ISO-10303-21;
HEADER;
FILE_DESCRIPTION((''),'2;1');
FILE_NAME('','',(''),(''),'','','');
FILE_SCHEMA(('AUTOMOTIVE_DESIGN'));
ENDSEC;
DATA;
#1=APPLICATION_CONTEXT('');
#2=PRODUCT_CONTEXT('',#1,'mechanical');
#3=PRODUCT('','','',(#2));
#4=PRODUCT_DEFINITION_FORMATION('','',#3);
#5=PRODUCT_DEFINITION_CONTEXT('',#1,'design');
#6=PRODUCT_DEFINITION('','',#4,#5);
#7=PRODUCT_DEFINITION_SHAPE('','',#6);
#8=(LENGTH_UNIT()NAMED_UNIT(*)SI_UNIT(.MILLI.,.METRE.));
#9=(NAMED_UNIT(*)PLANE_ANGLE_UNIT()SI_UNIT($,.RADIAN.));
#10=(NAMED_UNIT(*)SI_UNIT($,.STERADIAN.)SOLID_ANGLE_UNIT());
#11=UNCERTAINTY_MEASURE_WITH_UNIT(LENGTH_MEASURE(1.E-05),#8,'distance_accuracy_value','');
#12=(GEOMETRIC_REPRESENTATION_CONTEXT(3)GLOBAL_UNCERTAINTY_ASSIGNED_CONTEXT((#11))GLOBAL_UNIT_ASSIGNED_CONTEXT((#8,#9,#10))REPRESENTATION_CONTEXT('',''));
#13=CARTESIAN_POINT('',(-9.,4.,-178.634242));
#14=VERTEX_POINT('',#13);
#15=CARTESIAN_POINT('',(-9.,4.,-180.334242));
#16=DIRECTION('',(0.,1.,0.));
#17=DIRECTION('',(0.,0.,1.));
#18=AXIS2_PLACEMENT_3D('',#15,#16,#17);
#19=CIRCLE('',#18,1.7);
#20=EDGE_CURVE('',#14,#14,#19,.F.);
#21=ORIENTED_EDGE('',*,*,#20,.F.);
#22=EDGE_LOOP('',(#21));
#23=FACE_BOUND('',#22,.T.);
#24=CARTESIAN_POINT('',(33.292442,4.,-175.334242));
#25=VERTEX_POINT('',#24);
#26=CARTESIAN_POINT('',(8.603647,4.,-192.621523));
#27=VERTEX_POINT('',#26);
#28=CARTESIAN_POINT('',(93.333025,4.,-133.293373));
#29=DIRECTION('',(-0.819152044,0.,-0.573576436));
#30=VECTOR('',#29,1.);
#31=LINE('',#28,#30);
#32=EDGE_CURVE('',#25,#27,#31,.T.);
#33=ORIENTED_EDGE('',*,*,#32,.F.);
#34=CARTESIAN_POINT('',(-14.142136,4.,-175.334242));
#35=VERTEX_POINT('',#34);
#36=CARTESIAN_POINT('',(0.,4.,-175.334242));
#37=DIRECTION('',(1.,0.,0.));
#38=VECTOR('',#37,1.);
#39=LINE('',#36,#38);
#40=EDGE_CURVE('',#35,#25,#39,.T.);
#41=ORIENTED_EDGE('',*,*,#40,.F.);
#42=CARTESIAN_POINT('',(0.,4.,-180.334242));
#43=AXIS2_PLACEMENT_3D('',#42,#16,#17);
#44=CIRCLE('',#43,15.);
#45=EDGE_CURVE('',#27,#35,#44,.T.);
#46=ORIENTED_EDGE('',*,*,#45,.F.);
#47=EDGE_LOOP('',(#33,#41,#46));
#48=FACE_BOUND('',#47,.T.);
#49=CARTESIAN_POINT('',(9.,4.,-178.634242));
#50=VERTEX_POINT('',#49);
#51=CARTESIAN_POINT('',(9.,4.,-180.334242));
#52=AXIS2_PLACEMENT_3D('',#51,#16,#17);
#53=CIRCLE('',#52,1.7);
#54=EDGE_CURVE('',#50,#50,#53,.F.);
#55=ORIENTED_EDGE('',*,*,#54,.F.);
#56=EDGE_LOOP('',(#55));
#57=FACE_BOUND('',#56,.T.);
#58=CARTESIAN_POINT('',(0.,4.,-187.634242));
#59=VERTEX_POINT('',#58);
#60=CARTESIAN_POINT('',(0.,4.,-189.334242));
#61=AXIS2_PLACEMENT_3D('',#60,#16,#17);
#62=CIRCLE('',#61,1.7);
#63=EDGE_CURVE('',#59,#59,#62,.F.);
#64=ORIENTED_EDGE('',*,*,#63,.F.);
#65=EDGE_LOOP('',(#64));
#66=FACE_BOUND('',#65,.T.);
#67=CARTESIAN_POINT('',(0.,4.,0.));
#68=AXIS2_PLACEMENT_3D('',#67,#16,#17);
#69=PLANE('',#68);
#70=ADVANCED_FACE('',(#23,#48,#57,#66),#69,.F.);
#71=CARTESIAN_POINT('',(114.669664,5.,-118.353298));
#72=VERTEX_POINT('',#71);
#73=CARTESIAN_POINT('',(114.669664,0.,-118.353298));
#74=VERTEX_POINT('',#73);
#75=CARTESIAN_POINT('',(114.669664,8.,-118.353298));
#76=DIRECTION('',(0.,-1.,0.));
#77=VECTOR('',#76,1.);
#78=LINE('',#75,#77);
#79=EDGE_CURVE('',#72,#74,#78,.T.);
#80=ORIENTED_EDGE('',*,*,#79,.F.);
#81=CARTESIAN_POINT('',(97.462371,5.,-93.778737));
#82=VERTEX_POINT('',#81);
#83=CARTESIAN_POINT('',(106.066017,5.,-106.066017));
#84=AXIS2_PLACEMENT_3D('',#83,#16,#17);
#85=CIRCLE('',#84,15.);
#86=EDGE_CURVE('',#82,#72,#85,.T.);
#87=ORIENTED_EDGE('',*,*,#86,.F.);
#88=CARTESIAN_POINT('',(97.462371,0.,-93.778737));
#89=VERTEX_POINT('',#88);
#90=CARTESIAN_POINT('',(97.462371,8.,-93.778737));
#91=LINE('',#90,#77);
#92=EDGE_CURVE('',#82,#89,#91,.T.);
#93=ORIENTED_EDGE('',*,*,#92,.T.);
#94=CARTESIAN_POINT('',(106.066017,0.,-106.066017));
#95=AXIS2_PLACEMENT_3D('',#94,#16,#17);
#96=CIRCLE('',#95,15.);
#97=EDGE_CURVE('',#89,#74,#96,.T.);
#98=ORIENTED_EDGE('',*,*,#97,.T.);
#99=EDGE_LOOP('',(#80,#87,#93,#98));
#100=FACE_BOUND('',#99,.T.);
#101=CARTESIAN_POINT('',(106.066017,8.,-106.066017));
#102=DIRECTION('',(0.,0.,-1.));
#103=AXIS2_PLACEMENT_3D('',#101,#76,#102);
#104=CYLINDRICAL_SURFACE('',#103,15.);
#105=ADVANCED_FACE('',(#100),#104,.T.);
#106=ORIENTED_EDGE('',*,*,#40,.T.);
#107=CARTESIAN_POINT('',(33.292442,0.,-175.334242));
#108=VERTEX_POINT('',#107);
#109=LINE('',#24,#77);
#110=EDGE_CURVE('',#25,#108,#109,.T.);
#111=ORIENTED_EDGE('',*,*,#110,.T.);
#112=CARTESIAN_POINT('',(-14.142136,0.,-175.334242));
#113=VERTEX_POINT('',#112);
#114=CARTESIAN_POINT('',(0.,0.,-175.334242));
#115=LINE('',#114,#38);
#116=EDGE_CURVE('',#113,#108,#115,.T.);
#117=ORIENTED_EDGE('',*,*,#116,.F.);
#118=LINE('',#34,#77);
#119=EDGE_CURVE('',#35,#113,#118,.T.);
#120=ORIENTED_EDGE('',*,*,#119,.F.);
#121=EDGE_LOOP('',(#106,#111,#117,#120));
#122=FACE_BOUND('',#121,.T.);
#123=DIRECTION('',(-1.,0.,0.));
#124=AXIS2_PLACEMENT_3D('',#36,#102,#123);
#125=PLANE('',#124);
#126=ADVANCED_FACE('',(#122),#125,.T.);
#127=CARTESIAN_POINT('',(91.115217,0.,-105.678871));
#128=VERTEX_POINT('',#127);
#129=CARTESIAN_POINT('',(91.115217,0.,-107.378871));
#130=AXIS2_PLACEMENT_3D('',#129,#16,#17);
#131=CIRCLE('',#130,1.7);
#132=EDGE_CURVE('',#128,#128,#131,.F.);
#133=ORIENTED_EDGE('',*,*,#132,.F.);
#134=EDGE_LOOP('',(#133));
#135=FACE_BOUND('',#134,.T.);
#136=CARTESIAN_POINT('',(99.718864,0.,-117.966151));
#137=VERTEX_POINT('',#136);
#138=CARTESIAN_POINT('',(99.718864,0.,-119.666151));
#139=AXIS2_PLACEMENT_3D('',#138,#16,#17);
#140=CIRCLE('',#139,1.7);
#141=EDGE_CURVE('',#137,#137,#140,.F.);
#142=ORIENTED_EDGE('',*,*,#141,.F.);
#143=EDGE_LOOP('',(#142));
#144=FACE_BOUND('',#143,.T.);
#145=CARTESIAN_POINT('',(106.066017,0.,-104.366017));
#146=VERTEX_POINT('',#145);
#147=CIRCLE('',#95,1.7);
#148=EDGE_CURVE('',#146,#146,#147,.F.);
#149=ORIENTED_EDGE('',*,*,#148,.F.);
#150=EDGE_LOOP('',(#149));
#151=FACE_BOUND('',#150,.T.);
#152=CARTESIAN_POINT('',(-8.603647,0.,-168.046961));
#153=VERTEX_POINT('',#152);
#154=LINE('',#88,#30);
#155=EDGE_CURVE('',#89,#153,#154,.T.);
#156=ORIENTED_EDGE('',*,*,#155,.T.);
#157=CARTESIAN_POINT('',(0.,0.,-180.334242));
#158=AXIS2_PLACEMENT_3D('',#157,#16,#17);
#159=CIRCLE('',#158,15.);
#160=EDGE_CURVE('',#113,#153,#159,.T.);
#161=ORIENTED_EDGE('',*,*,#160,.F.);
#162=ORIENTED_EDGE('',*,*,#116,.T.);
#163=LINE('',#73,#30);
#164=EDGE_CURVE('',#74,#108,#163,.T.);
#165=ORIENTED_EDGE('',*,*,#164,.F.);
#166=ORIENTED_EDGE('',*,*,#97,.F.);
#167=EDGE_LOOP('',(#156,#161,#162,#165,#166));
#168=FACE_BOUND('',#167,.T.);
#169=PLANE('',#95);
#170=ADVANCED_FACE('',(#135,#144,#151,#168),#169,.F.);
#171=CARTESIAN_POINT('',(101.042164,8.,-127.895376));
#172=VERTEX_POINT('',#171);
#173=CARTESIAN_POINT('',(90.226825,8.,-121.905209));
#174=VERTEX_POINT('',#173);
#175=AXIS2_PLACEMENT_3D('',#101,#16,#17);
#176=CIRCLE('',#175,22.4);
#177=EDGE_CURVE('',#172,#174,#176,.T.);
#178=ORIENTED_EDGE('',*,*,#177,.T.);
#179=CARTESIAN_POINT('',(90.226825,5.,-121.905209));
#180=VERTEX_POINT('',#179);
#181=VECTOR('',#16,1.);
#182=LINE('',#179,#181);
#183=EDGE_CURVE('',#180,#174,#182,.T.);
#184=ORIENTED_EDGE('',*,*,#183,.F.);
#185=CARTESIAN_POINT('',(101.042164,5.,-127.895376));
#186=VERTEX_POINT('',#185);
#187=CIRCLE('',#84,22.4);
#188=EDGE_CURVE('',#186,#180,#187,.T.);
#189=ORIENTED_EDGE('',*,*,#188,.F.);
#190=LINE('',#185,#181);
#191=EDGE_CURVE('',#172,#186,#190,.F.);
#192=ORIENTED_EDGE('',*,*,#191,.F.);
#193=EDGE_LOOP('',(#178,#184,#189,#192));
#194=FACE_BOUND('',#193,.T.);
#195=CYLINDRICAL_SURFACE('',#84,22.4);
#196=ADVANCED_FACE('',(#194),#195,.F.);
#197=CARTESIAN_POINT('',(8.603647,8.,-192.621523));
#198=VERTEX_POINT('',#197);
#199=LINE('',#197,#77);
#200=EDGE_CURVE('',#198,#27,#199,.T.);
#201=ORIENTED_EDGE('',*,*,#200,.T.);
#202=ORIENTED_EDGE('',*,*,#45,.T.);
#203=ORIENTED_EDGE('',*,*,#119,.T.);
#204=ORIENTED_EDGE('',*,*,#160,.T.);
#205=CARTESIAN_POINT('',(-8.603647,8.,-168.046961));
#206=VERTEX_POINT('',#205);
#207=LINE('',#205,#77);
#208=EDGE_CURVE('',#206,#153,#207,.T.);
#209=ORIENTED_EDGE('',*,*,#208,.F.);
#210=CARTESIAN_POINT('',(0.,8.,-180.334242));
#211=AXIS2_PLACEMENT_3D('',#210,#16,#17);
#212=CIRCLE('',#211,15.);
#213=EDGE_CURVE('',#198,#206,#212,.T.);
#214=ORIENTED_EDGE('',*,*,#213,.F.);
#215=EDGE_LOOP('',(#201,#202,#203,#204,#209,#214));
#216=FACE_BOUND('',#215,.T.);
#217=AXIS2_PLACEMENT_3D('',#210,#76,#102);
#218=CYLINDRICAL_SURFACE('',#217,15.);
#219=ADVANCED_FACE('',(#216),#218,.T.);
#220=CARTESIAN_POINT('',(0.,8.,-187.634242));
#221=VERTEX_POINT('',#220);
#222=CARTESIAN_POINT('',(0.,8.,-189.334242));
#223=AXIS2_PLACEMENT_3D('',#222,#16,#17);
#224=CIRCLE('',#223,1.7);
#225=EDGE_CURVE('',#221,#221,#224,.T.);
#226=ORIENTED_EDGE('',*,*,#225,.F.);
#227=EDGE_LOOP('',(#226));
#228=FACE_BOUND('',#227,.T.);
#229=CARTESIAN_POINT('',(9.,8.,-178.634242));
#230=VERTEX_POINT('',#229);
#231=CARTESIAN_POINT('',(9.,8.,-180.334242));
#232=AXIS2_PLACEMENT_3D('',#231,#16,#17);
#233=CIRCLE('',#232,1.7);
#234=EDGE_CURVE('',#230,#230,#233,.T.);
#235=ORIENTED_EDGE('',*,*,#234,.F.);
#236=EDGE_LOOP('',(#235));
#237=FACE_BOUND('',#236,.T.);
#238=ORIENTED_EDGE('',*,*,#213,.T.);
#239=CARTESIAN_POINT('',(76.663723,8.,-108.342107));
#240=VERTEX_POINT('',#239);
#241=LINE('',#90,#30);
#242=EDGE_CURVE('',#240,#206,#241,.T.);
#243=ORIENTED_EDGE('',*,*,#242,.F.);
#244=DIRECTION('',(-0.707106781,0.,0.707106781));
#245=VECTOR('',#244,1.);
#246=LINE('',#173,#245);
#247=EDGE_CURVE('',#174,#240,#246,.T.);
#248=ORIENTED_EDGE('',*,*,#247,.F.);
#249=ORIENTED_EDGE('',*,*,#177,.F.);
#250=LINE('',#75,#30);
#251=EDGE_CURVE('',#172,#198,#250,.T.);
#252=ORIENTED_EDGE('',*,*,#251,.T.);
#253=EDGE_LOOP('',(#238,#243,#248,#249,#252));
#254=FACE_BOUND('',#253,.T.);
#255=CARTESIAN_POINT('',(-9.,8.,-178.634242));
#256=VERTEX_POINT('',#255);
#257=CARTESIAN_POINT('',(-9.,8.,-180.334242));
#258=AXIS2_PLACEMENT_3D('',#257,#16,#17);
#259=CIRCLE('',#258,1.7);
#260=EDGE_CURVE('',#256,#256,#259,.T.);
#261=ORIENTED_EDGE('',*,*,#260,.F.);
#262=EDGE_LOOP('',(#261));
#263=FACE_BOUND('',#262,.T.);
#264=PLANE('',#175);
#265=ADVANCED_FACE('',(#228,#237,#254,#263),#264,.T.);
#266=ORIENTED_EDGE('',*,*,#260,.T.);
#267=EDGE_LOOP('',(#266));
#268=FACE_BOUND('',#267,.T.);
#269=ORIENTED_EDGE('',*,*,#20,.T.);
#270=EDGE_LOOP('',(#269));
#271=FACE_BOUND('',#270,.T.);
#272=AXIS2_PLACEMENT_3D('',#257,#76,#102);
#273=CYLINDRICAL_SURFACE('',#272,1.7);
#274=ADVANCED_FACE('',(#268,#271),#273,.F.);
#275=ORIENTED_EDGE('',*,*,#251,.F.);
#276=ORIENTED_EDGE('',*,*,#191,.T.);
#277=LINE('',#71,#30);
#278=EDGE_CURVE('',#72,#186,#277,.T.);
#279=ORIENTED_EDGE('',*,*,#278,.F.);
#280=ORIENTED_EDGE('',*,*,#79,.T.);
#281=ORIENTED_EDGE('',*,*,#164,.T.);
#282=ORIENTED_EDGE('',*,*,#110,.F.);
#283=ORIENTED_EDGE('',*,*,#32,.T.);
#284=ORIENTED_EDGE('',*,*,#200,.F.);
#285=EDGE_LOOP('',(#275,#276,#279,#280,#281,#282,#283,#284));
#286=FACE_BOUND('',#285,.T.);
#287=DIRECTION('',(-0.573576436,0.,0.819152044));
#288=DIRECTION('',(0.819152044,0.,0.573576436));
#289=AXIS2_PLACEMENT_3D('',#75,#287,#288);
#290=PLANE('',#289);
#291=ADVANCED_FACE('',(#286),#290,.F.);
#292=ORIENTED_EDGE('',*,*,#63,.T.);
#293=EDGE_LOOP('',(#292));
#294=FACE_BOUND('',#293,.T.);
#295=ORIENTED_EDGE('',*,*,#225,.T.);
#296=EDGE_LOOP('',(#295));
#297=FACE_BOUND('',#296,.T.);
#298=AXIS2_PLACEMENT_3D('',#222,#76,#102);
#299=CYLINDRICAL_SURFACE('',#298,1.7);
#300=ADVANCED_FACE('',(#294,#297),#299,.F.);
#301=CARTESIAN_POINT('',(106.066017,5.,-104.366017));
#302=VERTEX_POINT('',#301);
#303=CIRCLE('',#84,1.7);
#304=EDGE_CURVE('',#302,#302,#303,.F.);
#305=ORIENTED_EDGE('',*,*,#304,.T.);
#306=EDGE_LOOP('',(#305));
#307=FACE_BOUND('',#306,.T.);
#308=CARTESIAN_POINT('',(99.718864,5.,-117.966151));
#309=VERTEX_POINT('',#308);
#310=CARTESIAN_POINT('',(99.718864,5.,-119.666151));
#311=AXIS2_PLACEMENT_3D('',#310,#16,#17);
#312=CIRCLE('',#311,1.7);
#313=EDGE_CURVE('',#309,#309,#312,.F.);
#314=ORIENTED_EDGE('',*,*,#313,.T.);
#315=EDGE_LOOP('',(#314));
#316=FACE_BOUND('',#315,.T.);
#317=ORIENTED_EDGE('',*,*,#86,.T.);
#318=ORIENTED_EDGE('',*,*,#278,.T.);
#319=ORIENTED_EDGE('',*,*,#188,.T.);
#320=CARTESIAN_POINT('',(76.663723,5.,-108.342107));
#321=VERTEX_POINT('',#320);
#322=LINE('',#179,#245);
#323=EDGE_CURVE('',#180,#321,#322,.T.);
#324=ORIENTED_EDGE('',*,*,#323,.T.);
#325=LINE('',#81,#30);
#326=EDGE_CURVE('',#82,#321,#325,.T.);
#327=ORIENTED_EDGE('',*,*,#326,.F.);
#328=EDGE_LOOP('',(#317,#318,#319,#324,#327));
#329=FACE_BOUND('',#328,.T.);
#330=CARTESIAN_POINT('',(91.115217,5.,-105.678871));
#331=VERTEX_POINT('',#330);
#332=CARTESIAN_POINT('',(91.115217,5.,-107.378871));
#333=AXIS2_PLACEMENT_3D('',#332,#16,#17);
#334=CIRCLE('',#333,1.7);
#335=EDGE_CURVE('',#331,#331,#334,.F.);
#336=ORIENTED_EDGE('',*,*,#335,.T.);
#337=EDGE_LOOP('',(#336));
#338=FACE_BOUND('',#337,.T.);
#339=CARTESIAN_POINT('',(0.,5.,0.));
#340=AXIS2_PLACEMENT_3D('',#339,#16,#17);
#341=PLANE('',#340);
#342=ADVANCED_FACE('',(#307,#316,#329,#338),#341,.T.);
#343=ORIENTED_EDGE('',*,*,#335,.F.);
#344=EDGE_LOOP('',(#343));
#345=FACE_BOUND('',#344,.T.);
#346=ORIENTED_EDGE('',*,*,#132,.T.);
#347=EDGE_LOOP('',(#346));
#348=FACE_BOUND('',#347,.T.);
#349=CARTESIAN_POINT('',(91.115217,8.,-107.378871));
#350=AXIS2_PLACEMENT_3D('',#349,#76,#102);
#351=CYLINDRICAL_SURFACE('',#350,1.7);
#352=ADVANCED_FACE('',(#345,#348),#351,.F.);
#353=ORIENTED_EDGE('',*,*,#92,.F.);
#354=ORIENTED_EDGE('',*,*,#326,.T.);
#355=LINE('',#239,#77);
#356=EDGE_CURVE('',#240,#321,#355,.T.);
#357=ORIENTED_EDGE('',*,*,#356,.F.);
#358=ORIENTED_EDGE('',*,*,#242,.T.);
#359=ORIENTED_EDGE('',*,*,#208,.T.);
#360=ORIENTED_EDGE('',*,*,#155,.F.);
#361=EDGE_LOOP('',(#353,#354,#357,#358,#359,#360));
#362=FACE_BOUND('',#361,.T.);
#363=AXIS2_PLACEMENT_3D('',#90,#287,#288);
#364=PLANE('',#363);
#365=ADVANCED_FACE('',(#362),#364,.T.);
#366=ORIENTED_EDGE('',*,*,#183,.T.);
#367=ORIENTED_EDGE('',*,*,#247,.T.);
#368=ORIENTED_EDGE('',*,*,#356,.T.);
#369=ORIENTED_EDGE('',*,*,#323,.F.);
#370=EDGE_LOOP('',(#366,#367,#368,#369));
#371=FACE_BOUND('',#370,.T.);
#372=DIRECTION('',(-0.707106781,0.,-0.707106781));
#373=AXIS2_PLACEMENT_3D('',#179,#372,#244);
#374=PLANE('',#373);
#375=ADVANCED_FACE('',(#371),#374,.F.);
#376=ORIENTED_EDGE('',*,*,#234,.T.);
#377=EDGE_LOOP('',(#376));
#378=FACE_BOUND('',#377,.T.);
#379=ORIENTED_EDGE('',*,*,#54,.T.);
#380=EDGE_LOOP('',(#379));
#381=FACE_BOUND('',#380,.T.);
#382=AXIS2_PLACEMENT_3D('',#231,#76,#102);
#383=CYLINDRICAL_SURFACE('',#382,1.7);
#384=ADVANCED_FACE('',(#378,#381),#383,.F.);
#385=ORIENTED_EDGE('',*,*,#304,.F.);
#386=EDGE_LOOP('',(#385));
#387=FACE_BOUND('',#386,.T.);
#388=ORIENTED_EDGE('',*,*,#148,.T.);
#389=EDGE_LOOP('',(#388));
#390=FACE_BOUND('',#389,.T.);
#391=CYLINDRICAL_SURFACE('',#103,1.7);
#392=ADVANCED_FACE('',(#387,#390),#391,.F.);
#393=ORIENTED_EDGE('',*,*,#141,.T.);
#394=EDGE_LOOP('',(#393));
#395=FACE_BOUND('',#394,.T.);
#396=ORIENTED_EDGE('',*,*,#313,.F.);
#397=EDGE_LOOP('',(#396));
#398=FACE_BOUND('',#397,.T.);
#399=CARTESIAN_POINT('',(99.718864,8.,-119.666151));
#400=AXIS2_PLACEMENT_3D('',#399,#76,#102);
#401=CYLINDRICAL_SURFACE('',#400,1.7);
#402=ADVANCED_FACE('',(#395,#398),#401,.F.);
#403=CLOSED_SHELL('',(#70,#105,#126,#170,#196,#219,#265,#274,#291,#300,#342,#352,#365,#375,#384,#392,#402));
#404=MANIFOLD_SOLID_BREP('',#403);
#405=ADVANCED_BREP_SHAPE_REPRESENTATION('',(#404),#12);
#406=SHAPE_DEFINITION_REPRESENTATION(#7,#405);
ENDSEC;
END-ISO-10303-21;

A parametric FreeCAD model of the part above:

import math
import FreeCAD as App
import Part
import Sketcher
from FreeCAD import Vector
Q = App.Units.Quantity

doc = App.newDocument("Part")
params = doc.addObject("Spreadsheet::Sheet", "Params")
for row, (alias, value) in enumerate([
    ("sketch1_radius", "15 mm"),
    ("pad1_length", "8 mm"),
    ("sketch2_radius", "22.4 mm"),
    ("sketch2_length", "150 mm"),
    ("pocket1_length", "3 mm"),
    ("sketch3_radius", "15 mm"),
    ("sketch3_diameter", "3.4 mm"),
    ("pocket2_length", "4 mm"),
    ("sketch4_diameter", "3.4 mm"),
], start=1):
    params.set(f"A{row}", alias)
    params.set(f"B{row}", "=" + value)
    params.setAlias(f"B{row}", alias)

body = doc.addObject("PartDesign::Body", "Body")

sketch1 = doc.addObject("Sketcher::SketchObject", "Sketch")
body.addObject(sketch1)
sketch1.AttachmentSupport = (doc.XZ_Plane, [""])
sketch1.MapMode = "FlatFace"
sketch1.addGeometry([
    Part.LineSegment(Vector(-9, -168, 0), Vector(97, -94, 0)),
    Part.ArcOfCircle(Part.Circle(Vector(106, -106, 0), Vector(0, 0, 1), 15), math.radians(-55), math.radians(125)),
    Part.LineSegment(Vector(115, -118, 0), Vector(9, -193, 0)),
    Part.ArcOfCircle(Part.Circle(Vector(0, -180, 0), Vector(0, 0, 1), 15), math.radians(125), math.radians(305)),
], False)
sketch1.addConstraint([
    Sketcher.Constraint("Tangent", 0, 2, 1, 2),
    Sketcher.Constraint("Tangent", 1, 1, 2, 1),
    Sketcher.Constraint("Tangent", 2, 2, 3, 2),
    Sketcher.Constraint("Tangent", 3, 1, 0, 1),
    Sketcher.Constraint("Equal", 1, 3),
    Sketcher.Constraint("PointOnObject", 3, 3, -2),
    Sketcher.Constraint("Radius", 1, 15.0),
    Sketcher.Constraint("Angle", 0, Q("35 deg")),
    Sketcher.Constraint("Distance", 0, 129.482699),
    Sketcher.Constraint("DistanceY", 3, 3, -1, 1, 180.334242),
])
sketch1.setExpression("Constraints[6]", "Params.sketch1_radius")
pad1 = doc.addObject("PartDesign::Pad", "Pad")
body.addObject(pad1)
pad1.Profile = sketch1
pad1.setExpression("Length", "Params.pad1_length")
pad1.Reversed = True

sketch2 = doc.addObject("Sketcher::SketchObject", "Sketch001")
body.addObject(sketch2)
sketch2.AttachmentSupport = (doc.XZ_Plane, [""])
sketch2.MapMode = "FlatFace"
sketch2.AttachmentOffset = App.Placement(Vector(0, 0, -8), App.Rotation())
sketch2.addGeometry([
    Part.LineSegment(Vector(90, -122, 0), Vector(-16, -16, 0)),
    Part.ArcOfCircle(Part.Circle(Vector(0, 0, 0), Vector(0, 0, 1), 22), math.radians(45), math.radians(225)),
    Part.LineSegment(Vector(16, 16, 0), Vector(122, -90, 0)),
    Part.ArcOfCircle(Part.Circle(Vector(106, -106, 0), Vector(0, 0, 1), 22), math.radians(-135), math.radians(45)),
], False)
sketch2.addConstraint([
    Sketcher.Constraint("Tangent", 0, 2, 1, 2),
    Sketcher.Constraint("Tangent", 1, 1, 2, 1),
    Sketcher.Constraint("Tangent", 2, 2, 3, 2),
    Sketcher.Constraint("Tangent", 3, 1, 0, 1),
    Sketcher.Constraint("Coincident", 1, 3, -1, 1),
    Sketcher.Constraint("Equal", 1, 3),
    Sketcher.Constraint("Radius", 1, 22.4),
    Sketcher.Constraint("Angle", 0, Q("135 deg")),
    Sketcher.Constraint("Distance", 0, 150.0),
])
sketch2.setExpression("Constraints[6]", "Params.sketch2_radius")
sketch2.setExpression("Constraints[8]", "Params.sketch2_length")
pocket1 = doc.addObject("PartDesign::Pocket", "Pocket")
body.addObject(pocket1)
pocket1.Profile = sketch2
pocket1.setExpression("Length", "Params.pocket1_length")
pocket1.Reversed = True

sketch3 = doc.addObject("Sketcher::SketchObject", "Sketch002")
body.addObject(sketch3)
sketch3.AttachmentSupport = (doc.XZ_Plane, [""])
sketch3.MapMode = "FlatFace"
sketch3.addGeometry([
    Part.ArcOfCircle(Part.Circle(Vector(0, -180.3, 0), Vector(0, 0, 1), 15), math.radians(161), math.radians(305)),
    Part.LineSegment(Vector(-14.1, -175.3, 0), Vector(33.3, -175.3, 0)),
    Part.LineSegment(Vector(33.3, -175.3, 0), Vector(8.6, -192.6, 0)),
    Part.Circle(Vector(-9, -180.3, 0), Vector(0, 0, 1), 1.7),
    Part.Circle(Vector(9, -180.3, 0), Vector(0, 0, 1), 1.7),
    Part.Circle(Vector(0, -189.3, 0), Vector(0, 0, 1), 1.7),
], False)
sketch3.addConstraint([
    Sketcher.Constraint("Coincident", 0, 1, 1, 1),
    Sketcher.Constraint("Coincident", 1, 2, 2, 1),
    Sketcher.Constraint("Tangent", 2, 2, 0, 2),
    Sketcher.Constraint("Horizontal", 1),
    Sketcher.Constraint("Equal", 3, 4),
    Sketcher.Constraint("Equal", 4, 5),
    Sketcher.Constraint("Symmetric", 3, 3, 4, 3, -2),
    Sketcher.Constraint("PointOnObject", 0, 3, -2),
    Sketcher.Constraint("PointOnObject", 5, 3, -2),
    Sketcher.Constraint("Horizontal", 0, 3, 3, 3),
    Sketcher.Constraint("Radius", 0, 15.0),
    Sketcher.Constraint("Diameter", 3, 3.4),
    Sketcher.Constraint("Angle", 2, Q("-145 deg")),
    Sketcher.Constraint("DistanceX", 3, 3, -1, 1, 9.0),
    Sketcher.Constraint("DistanceY", 5, 3, 0, 3, 9.0),
    Sketcher.Constraint("DistanceY", 3, 3, 0, 1, 5.0),
    Sketcher.Constraint("DistanceY", 0, 3, -1, 1, 180.334242),
])
sketch3.setExpression("Constraints[10]", "Params.sketch3_radius")
sketch3.setExpression("Constraints[11]", "Params.sketch3_diameter")
pocket2 = doc.addObject("PartDesign::Pocket", "Pocket001")
body.addObject(pocket2)
pocket2.Profile = sketch3
pocket2.setExpression("Length", "Params.pocket2_length")

sketch4 = doc.addObject("Sketcher::SketchObject", "Sketch003")
body.addObject(sketch4)
sketch4.AttachmentSupport = (doc.XZ_Plane, [""])
sketch4.MapMode = "FlatFace"
sketch4.addGeometry([
    Part.Circle(Vector(0, -189.3, 0), Vector(0, 0, 1), 1.7),
    Part.Circle(Vector(-9, -180.3, 0), Vector(0, 0, 1), 1.7),
    Part.Circle(Vector(9, -180.3, 0), Vector(0, 0, 1), 1.7),
    Part.Circle(Vector(99.7, -119.7, 0), Vector(0, 0, 1), 1.7),
    Part.Circle(Vector(91.1, -107.4, 0), Vector(0, 0, 1), 1.7),
    Part.Circle(Vector(106.1, -106.1, 0), Vector(0, 0, 1), 1.7),
], False)
sketch4.addConstraint([
    Sketcher.Constraint("Equal", 0, 1),
    Sketcher.Constraint("Equal", 1, 2),
    Sketcher.Constraint("Equal", 2, 3),
    Sketcher.Constraint("Equal", 3, 4),
    Sketcher.Constraint("Equal", 4, 5),
    Sketcher.Constraint("Symmetric", 1, 3, 2, 3, -2),
    Sketcher.Constraint("PointOnObject", 0, 3, -2),
    Sketcher.Constraint("Diameter", 0, 3.4),
    Sketcher.Constraint("DistanceX", 1, 3, -1, 1, 9.0),
    Sketcher.Constraint("DistanceY", 0, 3, 1, 3, 9.0),
    Sketcher.Constraint("DistanceX", 4, 3, 5, 3, 14.9508),
    Sketcher.Constraint("DistanceY", 0, 3, -1, 1, 189.334242),
    Sketcher.Constraint("DistanceY", 3, 3, -1, 1, 119.666151),
    Sketcher.Constraint("DistanceY", 4, 3, -1, 1, 107.378871),
    Sketcher.Constraint("DistanceX", -1, 1, 3, 3, 99.718864),
    Sketcher.Constraint("DistanceX", -1, 1, 4, 3, 91.115217),
    Sketcher.Constraint("DistanceY", 5, 3, -1, 1, 106.066017),
])
sketch4.setExpression("Constraints[7]", "Params.sketch4_diameter")
pocket3 = doc.addObject("PartDesign::Pocket", "Pocket002")
body.addObject(pocket3)
pocket3.Profile = sketch4
pocket3.Type = "ThroughAll"
pocket3.Midplane = True

doc.recompute()
